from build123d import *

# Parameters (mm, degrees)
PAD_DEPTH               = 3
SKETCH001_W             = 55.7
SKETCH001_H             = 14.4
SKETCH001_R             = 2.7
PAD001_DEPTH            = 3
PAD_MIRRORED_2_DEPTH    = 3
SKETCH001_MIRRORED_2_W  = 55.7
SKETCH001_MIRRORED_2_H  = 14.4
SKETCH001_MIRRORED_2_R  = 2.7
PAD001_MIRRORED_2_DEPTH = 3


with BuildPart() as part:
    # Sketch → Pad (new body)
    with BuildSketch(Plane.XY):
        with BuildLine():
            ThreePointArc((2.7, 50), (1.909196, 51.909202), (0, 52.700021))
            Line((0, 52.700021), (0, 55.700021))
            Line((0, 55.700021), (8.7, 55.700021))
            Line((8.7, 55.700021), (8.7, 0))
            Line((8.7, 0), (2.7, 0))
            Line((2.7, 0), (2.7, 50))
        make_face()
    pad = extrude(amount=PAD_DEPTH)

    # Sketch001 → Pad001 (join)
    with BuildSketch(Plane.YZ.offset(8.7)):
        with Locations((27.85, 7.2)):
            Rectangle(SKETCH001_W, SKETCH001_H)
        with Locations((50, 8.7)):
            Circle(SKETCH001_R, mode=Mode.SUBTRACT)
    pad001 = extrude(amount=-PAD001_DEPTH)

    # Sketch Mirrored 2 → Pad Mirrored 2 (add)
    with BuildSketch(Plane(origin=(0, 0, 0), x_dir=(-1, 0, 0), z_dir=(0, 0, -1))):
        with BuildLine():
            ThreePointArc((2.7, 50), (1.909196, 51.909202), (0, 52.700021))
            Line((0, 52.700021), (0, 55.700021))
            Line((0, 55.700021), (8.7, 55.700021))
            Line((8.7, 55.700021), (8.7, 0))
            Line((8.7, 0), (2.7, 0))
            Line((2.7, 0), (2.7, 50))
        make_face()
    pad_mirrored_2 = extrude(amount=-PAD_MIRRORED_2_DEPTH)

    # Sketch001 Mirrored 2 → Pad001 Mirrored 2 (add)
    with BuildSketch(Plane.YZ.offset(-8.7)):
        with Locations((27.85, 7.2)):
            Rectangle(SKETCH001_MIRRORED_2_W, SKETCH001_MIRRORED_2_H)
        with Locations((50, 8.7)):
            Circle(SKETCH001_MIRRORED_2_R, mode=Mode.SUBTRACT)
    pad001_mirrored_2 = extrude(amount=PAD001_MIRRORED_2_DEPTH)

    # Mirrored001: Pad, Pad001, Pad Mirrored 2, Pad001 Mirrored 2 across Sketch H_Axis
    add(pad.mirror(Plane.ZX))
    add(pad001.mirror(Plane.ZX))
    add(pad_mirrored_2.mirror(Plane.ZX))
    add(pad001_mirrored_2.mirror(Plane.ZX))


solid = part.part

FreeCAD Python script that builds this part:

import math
import FreeCAD as App
import Part
import Sketcher

V = App.Vector


def add_polygon(sketch, points):
    """Adds a closed chain of lines whose ends are joined by coincident constraints."""
    first, n = sketch.GeometryCount, len(points)
    for a, b in zip(points, points[1:] + points[:1]):
        sketch.addGeometry(Part.LineSegment(App.Vector(*a, 0), App.Vector(*b, 0)), False)
    for i in range(n):
        sketch.addConstraint(Sketcher.Constraint("Coincident", first + i, 2, first + (i + 1) % n, 1))

doc = App.newDocument("Part")
body = doc.addObject("PartDesign::Body", "Body")

# Sketch on XY plane
sketch1 = body.newObject("Sketcher::SketchObject", "Sketch")
sketch1.AttachmentSupport = (doc.getObject("XY_Plane"), [""])
sketch1.MapMode = "FlatFace"
sketch1.addGeometry([
    Part.ArcOfCircle(Part.Circle(V(0.000001, 50.000022, 0), V(0, 0, 1), 2.699999), math.radians(-0.000459), math.radians(90.000014)),  # 0
    Part.LineSegment(V(2.7, 50, 0), V(2.7, 0, 0)),  # 1
    Part.LineSegment(V(2.7, 0, 0), V(8.7, 0, 0)),  # 2
    Part.LineSegment(V(8.7, 0, 0), V(8.7, 55.700021, 0)),  # 3
    Part.LineSegment(V(8.7, 55.700021, 0), V(0, 55.700021, 0)),  # 4
    Part.LineSegment(V(0, 55.700021, 0), V(0, 52.700021, 0)),  # 5
], False)
sketch1.addConstraint([
    Sketcher.Constraint("Coincident", 0, 1, 1, 1),
    Sketcher.Constraint("Coincident", 1, 2, 2, 1),
    Sketcher.Constraint("Coincident", 2, 2, 3, 1),
    Sketcher.Constraint("Coincident", 3, 2, 4, 1),
    Sketcher.Constraint("Coincident", 4, 2, 5, 1),
    Sketcher.Constraint("Coincident", 5, 2, 0, 2),
    Sketcher.Constraint("Vertical", 1),
    Sketcher.Constraint("Horizontal", 2),
    Sketcher.Constraint("Vertical", 3),
    Sketcher.Constraint("Horizontal", 4),
    Sketcher.Constraint("Vertical", 5),
    Sketcher.Constraint("PointOnObject", 0, 3, -2),
    Sketcher.Constraint("PointOnObject", 1, 2, -1),
    Sketcher.Constraint("PointOnObject", 4, 2, -2),
    Sketcher.Constraint("Radius", 0, 2.699999),
    Sketcher.Constraint("DistanceX", 2, 1, 2, 2, 6.0),
    Sketcher.Constraint("DistanceY", 1, 2, 1, 1, 50.0),
    Sketcher.Constraint("DistanceY", 5, 2, 5, 1, 3.0),
    Sketcher.Constraint("DistanceY", 3, 1, 3, 2, 55.700021),
])
pad1 = body.newObject("PartDesign::Pad", "Pad")
pad1.Profile = sketch1
pad1.Length = 3

# Sketch on YZ plane
sketch2 = body.newObject("Sketcher::SketchObject", "Sketch001")
sketch2.AttachmentSupport = (doc.getObject("YZ_Plane"), [""])
sketch2.MapMode = "FlatFace"
sketch2.AttachmentOffset = App.Placement(V(0, 0, 8.7), App.Rotation())
add_polygon(sketch2, [(0, 14.4), (0, 0), (55.7, 0), (55.7, 14.4)])  # lines 0-3
sketch2.addGeometry(Part.Circle(V(50, 8.7, 0), V(0, 0, 1), 2.7), False)  # 4
sketch2.addConstraint([
    Sketcher.Constraint("Vertical", 0),
    Sketcher.Constraint("Horizontal", 1),
    Sketcher.Constraint("Vertical", 2),
    Sketcher.Constraint("Horizontal", 3),
    Sketcher.Constraint("Coincident", 0, 2, -1, 1),
    Sketcher.Constraint("Diameter", 4, 5.4),
    Sketcher.Constraint("DistanceX", 1, 1, 1, 2, 55.7),
    Sketcher.Constraint("DistanceY", 0, 2, 0, 1, 14.4),
    Sketcher.Constraint("DistanceX", -1, 1, 4, 3, 50.0),
    Sketcher.Constraint("DistanceY", -1, 1, 4, 3, 8.7),
])
pad2 = body.newObject("PartDesign::Pad", "Pad001")
pad2.Profile = sketch2
pad2.Length = 3
pad2.Reversed = True

# Sketch on XY plane
sketch3 = body.newObject("Sketcher::SketchObject", "Sketch002")
sketch3.AttachmentSupport = (doc.getObject("XY_Plane"), [""])
sketch3.MapMode = "FlatFace"
sketch3.addGeometry([
    Part.ArcOfCircle(Part.Circle(V(-0.000001, 50.000022, 0), V(0, 0, 1), 2.699999), math.radians(89.999986), math.radians(180.000459)),  # 0
    Part.LineSegment(V(-2.7, 50, 0), V(-2.7, 0, 0)),  # 1
    Part.LineSegment(V(-2.7, 0, 0), V(-8.7, 0, 0)),  # 2
    Part.LineSegment(V(-8.7, 0, 0), V(-8.7, 55.700021, 0)),  # 3
    Part.LineSegment(V(-8.7, 55.700021, 0), V(0, 55.700021, 0)),  # 4
    Part.LineSegment(V(0, 55.700021, 0), V(0, 52.700021, 0)),  # 5
], False)
sketch3.addConstraint([
    Sketcher.Constraint("Coincident", 0, 2, 1, 1),
    Sketcher.Constraint("Coincident", 1, 2, 2, 1),
    Sketcher.Constraint("Coincident", 2, 2, 3, 1),
    Sketcher.Constraint("Coincident", 3, 2, 4, 1),
    Sketcher.Constraint("Coincident", 4, 2, 5, 1),
    Sketcher.Constraint("Coincident", 5, 2, 0, 1),
    Sketcher.Constraint("Vertical", 1),
    Sketcher.Constraint("Horizontal", 2),
    Sketcher.Constraint("Vertical", 3),
    Sketcher.Constraint("Horizontal", 4),
    Sketcher.Constraint("Vertical", 5),
    Sketcher.Constraint("PointOnObject", 0, 3, -2),
    Sketcher.Constraint("PointOnObject", 1, 2, -1),
    Sketcher.Constraint("PointOnObject", 4, 2, -2),
    Sketcher.Constraint("Radius", 0, 2.699999),
    Sketcher.Constraint("DistanceX", 2, 2, 2, 1, 6.0),
    Sketcher.Constraint("DistanceY", 1, 2, 1, 1, 50.0),
    Sketcher.Constraint("DistanceY", 5, 2, 5, 1, 3.0),
    Sketcher.Constraint("DistanceY", 3, 1, 3, 2, 55.700021),
])
pad3 = body.newObject("PartDesign::Pad", "Pad002")
pad3.Profile = sketch3
pad3.Length = 3

# Sketch on YZ plane
sketch4 = body.newObject("Sketcher::SketchObject", "Sketch003")
sketch4.AttachmentSupport = (doc.getObject("YZ_Plane"), [""])
sketch4.MapMode = "FlatFace"
sketch4.AttachmentOffset = App.Placement(V(0, 0, -8.7), App.Rotation())
add_polygon(sketch4, [(0, 14.4), (0, 0), (55.7, 0), (55.7, 14.4)])  # lines 0-3
sketch4.addGeometry(Part.Circle(V(50, 8.7, 0), V(0, 0, 1), 2.7), False)  # 4
sketch4.addConstraint([
    Sketcher.Constraint("Vertical", 0),
    Sketcher.Constraint("Horizontal", 1),
    Sketcher.Constraint("Vertical", 2),
    Sketcher.Constraint("Horizontal", 3),
    Sketcher.Constraint("Coincident", 0, 2, -1, 1),
    Sketcher.Constraint("Diameter", 4, 5.4),
    Sketcher.Constraint("DistanceX", 1, 1, 1, 2, 55.7),
    Sketcher.Constraint("DistanceY", 0, 2, 0, 1, 14.4),
    Sketcher.Constraint("DistanceX", -1, 1, 4, 3, 50.0),
    Sketcher.Constraint("DistanceY", -1, 1, 4, 3, 8.7),
])
pad4 = body.newObject("PartDesign::Pad", "Pad003")
pad4.Profile = sketch4
pad4.Length = 3
doc.recompute()

mirrored = body.newObject("PartDesign::Mirrored", "Mirrored")
mirrored.Originals = [pad1, pad2, pad3, pad4]
mirrored.MirrorPlane = (doc.getObject("XZ_Plane"), [""])
body.Tip = mirrored

doc.recompute()
